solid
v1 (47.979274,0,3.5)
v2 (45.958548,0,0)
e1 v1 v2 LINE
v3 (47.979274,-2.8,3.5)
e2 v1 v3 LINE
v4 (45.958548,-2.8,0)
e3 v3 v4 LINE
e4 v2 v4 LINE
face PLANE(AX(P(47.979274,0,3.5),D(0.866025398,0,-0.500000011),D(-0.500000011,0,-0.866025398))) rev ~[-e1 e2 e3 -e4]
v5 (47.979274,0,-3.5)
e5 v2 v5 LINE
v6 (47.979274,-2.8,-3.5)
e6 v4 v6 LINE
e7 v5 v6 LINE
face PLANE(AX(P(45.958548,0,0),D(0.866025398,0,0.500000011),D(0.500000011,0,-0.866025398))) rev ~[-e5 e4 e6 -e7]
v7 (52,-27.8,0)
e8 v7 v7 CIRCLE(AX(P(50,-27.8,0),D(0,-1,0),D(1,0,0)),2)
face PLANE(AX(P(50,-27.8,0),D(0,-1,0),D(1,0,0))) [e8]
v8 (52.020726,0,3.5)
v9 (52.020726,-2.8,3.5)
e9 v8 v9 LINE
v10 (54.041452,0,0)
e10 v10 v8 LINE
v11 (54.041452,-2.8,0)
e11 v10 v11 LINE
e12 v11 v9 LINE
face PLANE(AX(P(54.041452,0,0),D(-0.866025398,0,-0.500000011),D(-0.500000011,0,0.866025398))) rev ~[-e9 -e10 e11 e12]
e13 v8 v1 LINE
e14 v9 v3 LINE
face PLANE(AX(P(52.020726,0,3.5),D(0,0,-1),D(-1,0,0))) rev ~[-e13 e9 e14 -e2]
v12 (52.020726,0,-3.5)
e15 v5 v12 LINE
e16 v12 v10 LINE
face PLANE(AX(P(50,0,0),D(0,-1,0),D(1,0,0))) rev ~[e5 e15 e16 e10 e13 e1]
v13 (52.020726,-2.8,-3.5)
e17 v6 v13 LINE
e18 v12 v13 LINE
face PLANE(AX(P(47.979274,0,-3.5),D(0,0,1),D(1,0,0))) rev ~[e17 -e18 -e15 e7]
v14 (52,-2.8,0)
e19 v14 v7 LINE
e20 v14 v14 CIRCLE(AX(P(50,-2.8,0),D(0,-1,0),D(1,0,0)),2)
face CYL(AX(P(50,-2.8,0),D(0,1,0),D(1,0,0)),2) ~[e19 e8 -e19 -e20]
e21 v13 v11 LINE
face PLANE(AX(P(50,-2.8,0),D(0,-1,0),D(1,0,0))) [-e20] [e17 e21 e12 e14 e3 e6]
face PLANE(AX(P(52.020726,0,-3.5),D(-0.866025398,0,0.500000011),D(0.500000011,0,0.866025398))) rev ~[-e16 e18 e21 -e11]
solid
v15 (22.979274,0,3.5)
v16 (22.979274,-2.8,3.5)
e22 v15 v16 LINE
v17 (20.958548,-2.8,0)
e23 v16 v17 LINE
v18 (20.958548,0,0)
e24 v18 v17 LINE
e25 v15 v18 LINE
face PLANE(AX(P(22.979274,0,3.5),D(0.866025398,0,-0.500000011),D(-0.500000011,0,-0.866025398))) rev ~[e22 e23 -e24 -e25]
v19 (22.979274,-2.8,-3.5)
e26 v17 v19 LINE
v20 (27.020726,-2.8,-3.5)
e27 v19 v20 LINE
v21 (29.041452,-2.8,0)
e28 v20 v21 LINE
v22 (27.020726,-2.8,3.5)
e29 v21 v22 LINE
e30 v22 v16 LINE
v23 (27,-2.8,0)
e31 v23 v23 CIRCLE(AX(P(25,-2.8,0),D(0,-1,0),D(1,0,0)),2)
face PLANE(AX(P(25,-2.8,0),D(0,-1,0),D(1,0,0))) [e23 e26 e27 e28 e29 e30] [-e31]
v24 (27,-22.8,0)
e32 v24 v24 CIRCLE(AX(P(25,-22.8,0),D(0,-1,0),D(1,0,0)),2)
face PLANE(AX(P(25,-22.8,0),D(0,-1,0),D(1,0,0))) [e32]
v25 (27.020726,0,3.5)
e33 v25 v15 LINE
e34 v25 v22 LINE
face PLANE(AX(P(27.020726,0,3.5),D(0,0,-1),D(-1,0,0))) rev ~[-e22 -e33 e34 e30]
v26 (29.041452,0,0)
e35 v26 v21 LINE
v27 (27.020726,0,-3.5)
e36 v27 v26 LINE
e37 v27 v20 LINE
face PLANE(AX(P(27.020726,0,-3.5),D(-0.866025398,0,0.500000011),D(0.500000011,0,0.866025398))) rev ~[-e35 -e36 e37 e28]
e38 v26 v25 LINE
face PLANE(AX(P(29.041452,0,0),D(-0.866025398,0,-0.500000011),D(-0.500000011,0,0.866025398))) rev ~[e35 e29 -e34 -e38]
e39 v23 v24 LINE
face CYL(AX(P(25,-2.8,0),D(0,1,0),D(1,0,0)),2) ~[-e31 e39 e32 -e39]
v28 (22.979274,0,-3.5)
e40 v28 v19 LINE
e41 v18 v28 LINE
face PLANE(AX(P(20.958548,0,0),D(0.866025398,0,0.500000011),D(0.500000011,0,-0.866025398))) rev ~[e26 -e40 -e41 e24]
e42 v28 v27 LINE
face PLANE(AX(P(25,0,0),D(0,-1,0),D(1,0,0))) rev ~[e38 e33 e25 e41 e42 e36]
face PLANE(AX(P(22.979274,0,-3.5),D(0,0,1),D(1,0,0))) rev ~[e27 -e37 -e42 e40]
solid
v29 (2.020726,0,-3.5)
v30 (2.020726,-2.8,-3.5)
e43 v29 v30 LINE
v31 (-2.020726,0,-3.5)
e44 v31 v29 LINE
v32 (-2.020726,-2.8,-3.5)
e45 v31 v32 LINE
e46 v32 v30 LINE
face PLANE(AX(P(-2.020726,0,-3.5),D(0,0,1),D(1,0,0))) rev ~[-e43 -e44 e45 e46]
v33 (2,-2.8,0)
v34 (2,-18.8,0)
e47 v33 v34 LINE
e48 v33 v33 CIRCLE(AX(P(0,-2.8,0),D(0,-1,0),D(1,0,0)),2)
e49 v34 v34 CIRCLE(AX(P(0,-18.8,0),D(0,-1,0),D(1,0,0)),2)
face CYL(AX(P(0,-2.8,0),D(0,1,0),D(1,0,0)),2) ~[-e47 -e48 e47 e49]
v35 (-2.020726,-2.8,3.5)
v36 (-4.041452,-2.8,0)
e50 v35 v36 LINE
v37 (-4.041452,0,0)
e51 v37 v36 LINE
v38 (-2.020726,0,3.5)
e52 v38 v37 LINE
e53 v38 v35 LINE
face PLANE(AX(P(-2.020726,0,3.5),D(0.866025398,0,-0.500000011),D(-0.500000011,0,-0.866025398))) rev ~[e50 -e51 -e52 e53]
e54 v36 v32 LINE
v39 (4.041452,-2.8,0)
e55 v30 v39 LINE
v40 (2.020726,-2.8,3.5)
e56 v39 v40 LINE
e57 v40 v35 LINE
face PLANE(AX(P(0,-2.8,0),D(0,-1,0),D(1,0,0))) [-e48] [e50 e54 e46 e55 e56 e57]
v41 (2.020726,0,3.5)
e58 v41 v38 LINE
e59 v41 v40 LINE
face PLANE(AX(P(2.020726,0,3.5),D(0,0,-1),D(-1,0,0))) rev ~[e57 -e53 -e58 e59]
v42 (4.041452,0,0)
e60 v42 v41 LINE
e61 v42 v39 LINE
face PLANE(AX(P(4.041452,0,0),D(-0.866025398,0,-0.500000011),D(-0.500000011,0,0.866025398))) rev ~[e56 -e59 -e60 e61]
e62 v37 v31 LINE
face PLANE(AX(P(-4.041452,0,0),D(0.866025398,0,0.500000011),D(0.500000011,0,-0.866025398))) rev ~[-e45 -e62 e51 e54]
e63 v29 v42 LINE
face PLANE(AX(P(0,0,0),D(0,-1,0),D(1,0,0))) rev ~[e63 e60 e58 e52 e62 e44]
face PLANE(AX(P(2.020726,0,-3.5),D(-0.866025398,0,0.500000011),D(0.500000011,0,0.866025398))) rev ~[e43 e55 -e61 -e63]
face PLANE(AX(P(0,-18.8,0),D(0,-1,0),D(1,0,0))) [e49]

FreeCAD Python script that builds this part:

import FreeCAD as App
import Part
import Sketcher

V = App.Vector
Q = App.Units.Quantity


def add_polygon(sketch, points):
    """Adds a closed chain of lines whose ends are joined by coincident constraints."""
    first, n = sketch.GeometryCount, len(points)
    for a, b in zip(points, points[1:] + points[:1]):
        sketch.addGeometry(Part.LineSegment(App.Vector(*a, 0), App.Vector(*b, 0)), False)
    for i in range(n):
        sketch.addConstraint(Sketcher.Constraint("Coincident", first + i, 2, first + (i + 1) % n, 1))

doc = App.newDocument("Part")
body = doc.addObject("PartDesign::Body", "Body")
body.AllowCompound = True

# Sketch on XZ plane
sketch1 = doc.addObject("Sketcher::SketchObject", "Sketch")
body.addObject(sketch1)
sketch1.AttachmentSupport = (doc.XZ_Plane, [""])
sketch1.MapMode = "FlatFace"
add_polygon(sketch1, [(4, 0), (2, 3.5), (-2, 3.5), (-4, 0), (-2, -3.5), (2, -3.5)])  # lines 0-5
add_polygon(sketch1, [(29, 0), (27, 3.5), (23, 3.5), (21, 0), (23, -3.5), (27, -3.5)])  # lines 6-11
add_polygon(sketch1, [(54, 0), (52, 3.5), (48, 3.5), (46, 0), (48, -3.5), (52, -3.5)])  # lines 12-17
sketch1.addConstraint([
    Sketcher.Constraint("Horizontal", 1),
    Sketcher.Constraint("Horizontal", 4),
    Sketcher.Constraint("Horizontal", 7),
    Sketcher.Constraint("Horizontal", 10),
    Sketcher.Constraint("Horizontal", 13),
    Sketcher.Constraint("Horizontal", 16),
    Sketcher.Constraint("Symmetric", 0, 2, 3, 2, -1, 1),
    Sketcher.Constraint("Symmetric", 2, 2, 5, 2, -1, 1),
    Sketcher.Constraint("Symmetric", 7, 2, 9, 2, -1),
    Sketcher.Constraint("Symmetric", 13, 2, 15, 2, -1),
    Sketcher.Constraint("PointOnObject", 2, 2, -1),
    Sketcher.Constraint("PointOnObject", 8, 2, -1),
    Sketcher.Constraint("PointOnObject", 11, 2, -1),
    Sketcher.Constraint("PointOnObject", 14, 2, -1),
    Sketcher.Constraint("PointOnObject", 17, 2, -1),
    Sketcher.Constraint("Parallel", 2, 5),
    Sketcher.Constraint("Parallel", 3, 6),
    Sketcher.Constraint("Parallel", 5, 8),
    Sketcher.Constraint("Parallel", 6, 9),
    Sketcher.Constraint("Parallel", 8, 11),
    Sketcher.Constraint("Parallel", 9, 12),
    Sketcher.Constraint("Parallel", 11, 14),
    Sketcher.Constraint("Parallel", 14, 17),
    Sketcher.Constraint("Horizontal", 1, 2, 6, 2),
    Sketcher.Constraint("Horizontal", 7, 2, 12, 2),
    Sketcher.Constraint("Equal", 4, 7),
    Sketcher.Constraint("Equal", 10, 13),
    Sketcher.Constraint("Angle", 0, Q("120.000001 deg")),
    Sketcher.Constraint("DistanceY", 3, 2, 1, 2, Q("7 mm")),
    Sketcher.Constraint("DistanceX", 0, 2, 6, 2, Q("25 mm")),
    Sketcher.Constraint("DistanceX", 6, 2, 12, 2, Q("25 mm")),
    Sketcher.Constraint("DistanceX", 1, 2, 1, 1, Q("4.041452 mm")),
])
pad1 = doc.addObject("PartDesign::Pad", "Pad")
body.addObject(pad1)
pad1.Profile = sketch1
pad1.Length = 2.8

# Sketch on XZ plane
sketch2 = doc.addObject("Sketcher::SketchObject", "Sketch001")
body.addObject(sketch2)
sketch2.AttachmentSupport = (doc.XZ_Plane, [""])
sketch2.MapMode = "FlatFace"
sketch2.AttachmentOffset = App.Placement(V(0, 0, 2.8), App.Rotation())
sketch2.addGeometry(Part.Circle(V(0, 0, 0), V(0, 0, 1), 2), False)
sketch2.addConstraint([
    Sketcher.Constraint("Coincident", 0, 3, -1, 1),
    Sketcher.Constraint("Diameter", 0, Q("4 mm")),
])
pad2 = doc.addObject("PartDesign::Pad", "Pad001")
body.addObject(pad2)
pad2.Profile = sketch2
pad2.Length = 16

# Sketch on XZ plane
sketch3 = doc.addObject("Sketcher::SketchObject", "Sketch002")
body.addObject(sketch3)
sketch3.AttachmentSupport = (doc.XZ_Plane, [""])
sketch3.MapMode = "FlatFace"
sketch3.AttachmentOffset = App.Placement(V(0, 0, 2.8), App.Rotation())
sketch3.addGeometry(Part.Circle(V(25, 0, 0), V(0, 0, 1), 2), False)
sketch3.addConstraint([
    Sketcher.Constraint("PointOnObject", 0, 3, -1),
    Sketcher.Constraint("Diameter", 0, Q("4 mm")),
    Sketcher.Constraint("DistanceX", -1, 1, 0, 3, Q("25 mm")),
])
pad3 = doc.addObject("PartDesign::Pad", "Pad002")
body.addObject(pad3)
pad3.Profile = sketch3
pad3.Length = 20

# Sketch on XZ plane
sketch4 = doc.addObject("Sketcher::SketchObject", "Sketch003")
body.addObject(sketch4)
sketch4.AttachmentSupport = (doc.XZ_Plane, [""])
sketch4.MapMode = "FlatFace"
sketch4.AttachmentOffset = App.Placement(V(0, 0, 2.8), App.Rotation())
sketch4.addGeometry(Part.Circle(V(50, 0, 0), V(0, 0, 1), 2), False)
sketch4.addConstraint([
    Sketcher.Constraint("PointOnObject", 0, 3, -1),
    Sketcher.Constraint("Diameter", 0, Q("4 mm")),
    Sketcher.Constraint("DistanceX", -1, 1, 0, 3, Q("50 mm")),
])
pad4 = doc.addObject("PartDesign::Pad", "Pad003")
body.addObject(pad4)
pad4.Profile = sketch4
pad4.Length = 25

doc.recompute()
